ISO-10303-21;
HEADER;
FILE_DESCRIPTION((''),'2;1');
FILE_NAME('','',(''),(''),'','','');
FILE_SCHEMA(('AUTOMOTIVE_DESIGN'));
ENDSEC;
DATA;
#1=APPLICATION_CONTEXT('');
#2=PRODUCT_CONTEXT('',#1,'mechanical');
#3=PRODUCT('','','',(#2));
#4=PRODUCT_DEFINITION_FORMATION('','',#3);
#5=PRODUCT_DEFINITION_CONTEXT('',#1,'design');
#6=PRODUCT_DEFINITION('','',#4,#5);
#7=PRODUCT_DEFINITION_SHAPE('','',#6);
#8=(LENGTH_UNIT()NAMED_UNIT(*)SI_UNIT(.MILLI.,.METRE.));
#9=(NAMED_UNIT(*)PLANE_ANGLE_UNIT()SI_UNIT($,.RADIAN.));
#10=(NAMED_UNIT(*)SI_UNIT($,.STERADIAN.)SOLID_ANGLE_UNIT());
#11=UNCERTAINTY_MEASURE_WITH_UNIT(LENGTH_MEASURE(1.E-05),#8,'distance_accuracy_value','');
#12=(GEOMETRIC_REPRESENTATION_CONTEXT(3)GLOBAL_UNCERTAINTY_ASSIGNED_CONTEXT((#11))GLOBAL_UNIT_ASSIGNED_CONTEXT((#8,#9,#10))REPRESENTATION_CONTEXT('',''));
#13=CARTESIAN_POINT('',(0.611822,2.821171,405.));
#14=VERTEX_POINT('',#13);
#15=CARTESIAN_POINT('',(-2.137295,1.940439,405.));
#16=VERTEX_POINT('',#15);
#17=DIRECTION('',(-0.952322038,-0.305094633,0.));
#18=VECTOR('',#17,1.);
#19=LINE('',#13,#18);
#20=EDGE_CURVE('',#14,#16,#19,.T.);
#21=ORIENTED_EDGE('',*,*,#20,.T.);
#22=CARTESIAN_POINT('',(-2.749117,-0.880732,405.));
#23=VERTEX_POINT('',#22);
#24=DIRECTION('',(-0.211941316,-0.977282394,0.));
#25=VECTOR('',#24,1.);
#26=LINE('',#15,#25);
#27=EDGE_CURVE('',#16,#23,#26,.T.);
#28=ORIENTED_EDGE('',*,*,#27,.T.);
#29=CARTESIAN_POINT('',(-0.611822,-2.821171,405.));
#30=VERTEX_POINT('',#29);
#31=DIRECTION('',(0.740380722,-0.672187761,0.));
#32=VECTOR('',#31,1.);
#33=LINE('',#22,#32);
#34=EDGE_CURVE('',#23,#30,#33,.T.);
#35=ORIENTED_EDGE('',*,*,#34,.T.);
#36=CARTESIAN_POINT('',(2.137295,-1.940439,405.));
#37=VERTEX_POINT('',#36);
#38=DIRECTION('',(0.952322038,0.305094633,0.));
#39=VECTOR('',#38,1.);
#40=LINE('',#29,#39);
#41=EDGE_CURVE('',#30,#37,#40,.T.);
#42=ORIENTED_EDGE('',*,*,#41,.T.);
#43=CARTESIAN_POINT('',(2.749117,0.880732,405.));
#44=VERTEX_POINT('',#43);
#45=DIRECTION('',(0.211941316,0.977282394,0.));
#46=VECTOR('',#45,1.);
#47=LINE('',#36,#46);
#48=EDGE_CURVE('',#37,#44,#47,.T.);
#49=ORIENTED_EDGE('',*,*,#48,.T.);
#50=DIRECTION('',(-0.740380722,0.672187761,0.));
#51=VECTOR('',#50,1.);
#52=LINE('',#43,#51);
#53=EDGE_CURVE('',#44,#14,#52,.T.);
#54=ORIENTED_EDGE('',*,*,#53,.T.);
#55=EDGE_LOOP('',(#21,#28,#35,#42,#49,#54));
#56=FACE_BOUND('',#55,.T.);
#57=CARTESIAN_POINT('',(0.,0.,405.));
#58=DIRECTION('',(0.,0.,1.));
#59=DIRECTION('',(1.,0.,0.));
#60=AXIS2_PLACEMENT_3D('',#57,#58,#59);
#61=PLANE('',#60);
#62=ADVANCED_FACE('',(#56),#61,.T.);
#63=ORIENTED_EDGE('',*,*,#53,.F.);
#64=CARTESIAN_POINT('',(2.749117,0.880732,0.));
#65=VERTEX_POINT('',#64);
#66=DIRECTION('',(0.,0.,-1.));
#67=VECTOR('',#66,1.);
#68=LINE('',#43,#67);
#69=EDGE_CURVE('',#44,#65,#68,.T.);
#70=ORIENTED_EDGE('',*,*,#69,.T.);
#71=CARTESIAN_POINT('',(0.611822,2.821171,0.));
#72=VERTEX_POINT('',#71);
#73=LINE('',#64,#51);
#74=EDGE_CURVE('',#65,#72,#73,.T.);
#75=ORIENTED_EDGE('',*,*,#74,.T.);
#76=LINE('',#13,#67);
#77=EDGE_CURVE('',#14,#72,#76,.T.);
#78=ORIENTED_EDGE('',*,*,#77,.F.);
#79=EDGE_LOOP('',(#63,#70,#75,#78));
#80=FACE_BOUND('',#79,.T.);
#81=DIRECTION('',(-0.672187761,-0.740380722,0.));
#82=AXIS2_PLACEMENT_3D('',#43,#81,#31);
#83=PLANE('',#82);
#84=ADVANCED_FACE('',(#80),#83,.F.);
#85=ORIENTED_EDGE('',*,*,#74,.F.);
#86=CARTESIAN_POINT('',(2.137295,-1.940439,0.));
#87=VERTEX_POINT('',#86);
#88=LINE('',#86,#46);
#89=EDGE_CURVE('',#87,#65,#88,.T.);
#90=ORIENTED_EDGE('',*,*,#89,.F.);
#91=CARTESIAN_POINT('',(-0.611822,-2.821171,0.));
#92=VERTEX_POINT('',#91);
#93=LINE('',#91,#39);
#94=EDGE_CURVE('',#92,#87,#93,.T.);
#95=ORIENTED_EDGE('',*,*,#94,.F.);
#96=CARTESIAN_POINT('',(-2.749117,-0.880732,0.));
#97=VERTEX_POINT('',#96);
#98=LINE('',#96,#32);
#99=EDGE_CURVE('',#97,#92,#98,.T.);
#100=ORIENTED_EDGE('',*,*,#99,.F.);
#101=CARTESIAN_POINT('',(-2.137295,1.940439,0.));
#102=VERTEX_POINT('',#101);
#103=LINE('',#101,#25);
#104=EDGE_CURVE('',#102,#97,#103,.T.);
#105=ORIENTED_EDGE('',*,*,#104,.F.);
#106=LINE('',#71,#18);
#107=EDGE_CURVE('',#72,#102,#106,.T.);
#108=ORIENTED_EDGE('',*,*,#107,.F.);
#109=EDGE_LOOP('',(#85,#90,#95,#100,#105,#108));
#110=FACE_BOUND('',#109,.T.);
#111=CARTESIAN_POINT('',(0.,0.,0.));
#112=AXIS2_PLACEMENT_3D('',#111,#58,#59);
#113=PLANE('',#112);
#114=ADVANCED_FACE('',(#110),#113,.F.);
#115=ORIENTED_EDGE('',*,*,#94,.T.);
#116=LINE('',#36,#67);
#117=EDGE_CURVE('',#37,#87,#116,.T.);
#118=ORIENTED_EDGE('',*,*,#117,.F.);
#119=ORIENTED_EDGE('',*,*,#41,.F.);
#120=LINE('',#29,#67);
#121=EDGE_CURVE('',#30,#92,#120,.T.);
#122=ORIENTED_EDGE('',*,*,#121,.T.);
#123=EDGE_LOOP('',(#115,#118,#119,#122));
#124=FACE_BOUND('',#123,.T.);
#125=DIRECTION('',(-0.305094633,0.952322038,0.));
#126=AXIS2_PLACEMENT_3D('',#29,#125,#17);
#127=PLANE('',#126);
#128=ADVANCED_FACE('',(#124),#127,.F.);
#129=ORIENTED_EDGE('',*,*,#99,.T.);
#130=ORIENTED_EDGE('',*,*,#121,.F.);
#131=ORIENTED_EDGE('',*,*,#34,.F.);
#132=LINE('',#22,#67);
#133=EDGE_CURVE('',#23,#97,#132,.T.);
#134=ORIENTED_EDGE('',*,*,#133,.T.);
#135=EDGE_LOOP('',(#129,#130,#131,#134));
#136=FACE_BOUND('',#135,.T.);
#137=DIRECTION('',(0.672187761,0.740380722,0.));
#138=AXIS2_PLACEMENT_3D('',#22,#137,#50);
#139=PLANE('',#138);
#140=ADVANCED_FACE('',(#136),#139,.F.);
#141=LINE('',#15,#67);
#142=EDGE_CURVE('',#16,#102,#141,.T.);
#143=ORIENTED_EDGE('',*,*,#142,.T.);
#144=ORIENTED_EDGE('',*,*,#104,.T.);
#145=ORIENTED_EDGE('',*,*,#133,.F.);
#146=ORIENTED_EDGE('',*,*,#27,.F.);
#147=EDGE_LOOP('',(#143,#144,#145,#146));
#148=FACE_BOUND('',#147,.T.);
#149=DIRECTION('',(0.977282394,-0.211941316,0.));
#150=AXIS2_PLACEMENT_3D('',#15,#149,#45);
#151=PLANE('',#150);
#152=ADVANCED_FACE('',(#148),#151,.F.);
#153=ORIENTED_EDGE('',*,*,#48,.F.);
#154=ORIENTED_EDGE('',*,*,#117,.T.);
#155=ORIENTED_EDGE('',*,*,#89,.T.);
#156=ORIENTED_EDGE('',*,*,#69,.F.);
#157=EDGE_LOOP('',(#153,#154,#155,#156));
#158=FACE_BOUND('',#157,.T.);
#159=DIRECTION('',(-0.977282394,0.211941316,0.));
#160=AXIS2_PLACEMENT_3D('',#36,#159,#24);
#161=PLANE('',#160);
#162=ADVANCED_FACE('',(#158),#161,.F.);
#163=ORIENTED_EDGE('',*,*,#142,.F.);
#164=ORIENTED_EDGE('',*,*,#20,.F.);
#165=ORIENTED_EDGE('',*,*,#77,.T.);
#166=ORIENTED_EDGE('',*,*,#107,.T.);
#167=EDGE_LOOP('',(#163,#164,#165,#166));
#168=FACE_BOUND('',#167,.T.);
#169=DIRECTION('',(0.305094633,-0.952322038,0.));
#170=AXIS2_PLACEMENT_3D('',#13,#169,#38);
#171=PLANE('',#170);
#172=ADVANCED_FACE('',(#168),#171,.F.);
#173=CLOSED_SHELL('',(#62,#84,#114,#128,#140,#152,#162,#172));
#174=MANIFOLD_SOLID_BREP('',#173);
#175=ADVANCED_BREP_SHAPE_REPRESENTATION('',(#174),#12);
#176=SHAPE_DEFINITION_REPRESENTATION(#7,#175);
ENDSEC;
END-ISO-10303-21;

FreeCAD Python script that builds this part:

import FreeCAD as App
import Part
import Sketcher

V = App.Vector
Q = App.Units.Quantity

doc = App.newDocument("Part")
body = doc.addObject("PartDesign::Body", "Body")

# Sketch on XY plane
sketch1 = body.newObject("Sketcher::SketchObject", "Sketch")
sketch1.AttachmentSupport = (doc.getObject("XY_Plane"), [""])
sketch1.MapMode = "FlatFace"
sketch1.addGeometry(Part.LineSegment(V(2.1, -1.9, 0), V(2.7, 0.9, 0)), False)
sketch1.addGeometry(Part.LineSegment(V(2.7, 0.9, 0), V(0.6, 2.8, 0)), False)
sketch1.addGeometry(Part.LineSegment(V(0.6, 2.8, 0), V(-2.1, 1.9, 0)), False)
sketch1.addGeometry(Part.LineSegment(V(-2.1, 1.9, 0), V(-2.7, -0.9, 0)), False)
sketch1.addGeometry(Part.LineSegment(V(-2.7, -0.9, 0), V(-0.6, -2.8, 0)), False)
sketch1.addGeometry(Part.LineSegment(V(-0.6, -2.8, 0), V(2.1, -1.9, 0)), False)
sketch1.addConstraint(Sketcher.Constraint("Coincident", 0, 2, 1, 1))
sketch1.addConstraint(Sketcher.Constraint("Coincident", 1, 2, 2, 1))
sketch1.addConstraint(Sketcher.Constraint("Coincident", 2, 2, 3, 1))
sketch1.addConstraint(Sketcher.Constraint("Coincident", 3, 2, 4, 1))
sketch1.addConstraint(Sketcher.Constraint("Coincident", 4, 2, 5, 1))
sketch1.addConstraint(Sketcher.Constraint("Coincident", 5, 2, 0, 1))
sketch1.addConstraint(Sketcher.Constraint("Symmetric", 0, 2, 3, 2, -1, 1))
sketch1.addConstraint(Sketcher.Constraint("Symmetric", 1, 2, 4, 2, -1, 1))
sketch1.addConstraint(Sketcher.Constraint("Symmetric", 2, 2, 5, 2, -1, 1))
sketch1.addConstraint(Sketcher.Constraint("Equal", 0, 1))
sketch1.addConstraint(Sketcher.Constraint("Equal", 1, 2))
sketch1.addConstraint(Sketcher.Constraint("Distance", 0, Q("2.886751 mm")))
sketch1.addConstraint(Sketcher.Constraint("DistanceX", -1, 1, 1, 2, Q("0.611822 mm")))
sketch1.addConstraint(Sketcher.Constraint("DistanceY", -1, 1, 1, 2, Q("2.821171 mm")))
sketch1.addConstraint(Sketcher.Constraint("DistanceY", -1, 1, 2, 2, Q("1.940439 mm")))
pad1 = body.newObject("PartDesign::Pad", "Pad")
pad1.Profile = sketch1
pad1.Length = 405

doc.recompute()
